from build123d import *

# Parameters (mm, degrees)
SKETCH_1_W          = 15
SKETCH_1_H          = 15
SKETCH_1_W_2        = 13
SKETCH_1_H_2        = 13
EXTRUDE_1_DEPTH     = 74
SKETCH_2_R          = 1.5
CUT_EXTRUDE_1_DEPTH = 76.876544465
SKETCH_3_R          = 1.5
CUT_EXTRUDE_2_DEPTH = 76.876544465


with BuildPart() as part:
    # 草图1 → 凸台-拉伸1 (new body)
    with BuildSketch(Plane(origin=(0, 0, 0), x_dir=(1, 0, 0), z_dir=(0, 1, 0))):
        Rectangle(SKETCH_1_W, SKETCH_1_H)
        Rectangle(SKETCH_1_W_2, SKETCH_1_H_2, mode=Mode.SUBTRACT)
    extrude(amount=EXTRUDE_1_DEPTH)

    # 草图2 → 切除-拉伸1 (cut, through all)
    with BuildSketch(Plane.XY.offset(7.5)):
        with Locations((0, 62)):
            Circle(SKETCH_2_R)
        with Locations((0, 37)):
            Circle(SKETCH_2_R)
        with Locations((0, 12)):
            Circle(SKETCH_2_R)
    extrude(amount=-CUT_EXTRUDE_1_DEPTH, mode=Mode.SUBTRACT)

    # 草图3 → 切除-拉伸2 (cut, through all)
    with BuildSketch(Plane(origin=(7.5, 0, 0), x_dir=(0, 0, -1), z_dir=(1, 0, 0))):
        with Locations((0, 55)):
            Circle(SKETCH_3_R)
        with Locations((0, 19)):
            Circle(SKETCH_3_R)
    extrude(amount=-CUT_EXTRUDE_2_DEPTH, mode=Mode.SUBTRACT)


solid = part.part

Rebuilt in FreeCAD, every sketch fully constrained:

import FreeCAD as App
import Part
import Sketcher

V = App.Vector
Q = App.Units.Quantity

doc = App.newDocument("Part")
params = doc.addObject("Spreadsheet::Sheet", "Params")
for row, (alias, value) in enumerate([
    ("sketch1_width", "15 mm"),
    ("sketch1_width2", "13 mm"),
    ("pad1_length", "74 mm"),
    ("sketch2_diameter", "3 mm"),
    ("sketch3_diameter", "3 mm"),
], start=1):
    params.set(f"A{row}", alias)
    params.set(f"B{row}", "=" + value)
    params.setAlias(f"B{row}", alias)

body = doc.addObject("PartDesign::Body", "Body")

# Sketch on XZ plane
sketch1 = body.newObject("Sketcher::SketchObject", "Sketch")
sketch1.AttachmentSupport = (doc.getObject("XZ_Plane"), [""])
sketch1.MapMode = "FlatFace"
sketch1.addGeometry(Part.LineSegment(V(-7.5, -7.5, 0), V(-7.5, 7.5, 0)), False)
sketch1.addGeometry(Part.LineSegment(V(-7.5, 7.5, 0), V(7.5, 7.5, 0)), False)
sketch1.addGeometry(Part.LineSegment(V(7.5, 7.5, 0), V(7.5, -7.5, 0)), False)
sketch1.addGeometry(Part.LineSegment(V(7.5, -7.5, 0), V(-7.5, -7.5, 0)), False)
sketch1.addGeometry(Part.LineSegment(V(6.5, 6.5, 0), V(-6.5, 6.5, 0)), False)
sketch1.addGeometry(Part.LineSegment(V(-6.5, 6.5, 0), V(-6.5, -6.5, 0)), False)
sketch1.addGeometry(Part.LineSegment(V(-6.5, -6.5, 0), V(6.5, -6.5, 0)), False)
sketch1.addGeometry(Part.LineSegment(V(6.5, -6.5, 0), V(6.5, 6.5, 0)), False)
sketch1.addConstraint(Sketcher.Constraint("Coincident", 0, 2, 1, 1))
sketch1.addConstraint(Sketcher.Constraint("Coincident", 1, 2, 2, 1))
sketch1.addConstraint(Sketcher.Constraint("Coincident", 2, 2, 3, 1))
sketch1.addConstraint(Sketcher.Constraint("Coincident", 3, 2, 0, 1))
sketch1.addConstraint(Sketcher.Constraint("Coincident", 4, 2, 5, 1))
sketch1.addConstraint(Sketcher.Constraint("Coincident", 5, 2, 6, 1))
sketch1.addConstraint(Sketcher.Constraint("Coincident", 6, 2, 7, 1))
sketch1.addConstraint(Sketcher.Constraint("Coincident", 7, 2, 4, 1))
sketch1.addConstraint(Sketcher.Constraint("Vertical", 0))
sketch1.addConstraint(Sketcher.Constraint("Horizontal", 1))
sketch1.addConstraint(Sketcher.Constraint("Vertical", 2))
sketch1.addConstraint(Sketcher.Constraint("Horizontal", 3))
sketch1.addConstraint(Sketcher.Constraint("Horizontal", 4))
sketch1.addConstraint(Sketcher.Constraint("Vertical", 5))
sketch1.addConstraint(Sketcher.Constraint("Horizontal", 6))
sketch1.addConstraint(Sketcher.Constraint("Vertical", 7))
sketch1.addConstraint(Sketcher.Constraint("Symmetric", 0, 2, 2, 2, -1, 1))
sketch1.addConstraint(Sketcher.Constraint("Symmetric", 4, 2, 6, 2, -1, 1))
sketch1.addConstraint(Sketcher.Constraint("Equal", 3, 0))
sketch1.addConstraint(Sketcher.Constraint("Equal", 6, 5))
sketch1.addConstraint(Sketcher.Constraint("DistanceX", 1, 1, 1, 2, Q("15 mm")))
sketch1.addConstraint(Sketcher.Constraint("DistanceX", 4, 2, 4, 1, Q("13 mm")))
sketch1.setExpression("Constraints[20]", "Params.sketch1_width")
sketch1.setExpression("Constraints[21]", "Params.sketch1_width2")
pad1 = body.newObject("PartDesign::Pad", "Pad")
pad1.Profile = sketch1
pad1.setExpression("Length", "Params.pad1_length")
pad1.Reversed = True

# Sketch on XY plane
sketch2 = body.newObject("Sketcher::SketchObject", "Sketch001")
sketch2.AttachmentSupport = (doc.getObject("XY_Plane"), [""])
sketch2.MapMode = "FlatFace"
sketch2.AttachmentOffset = App.Placement(V(0, 0, 7.5), App.Rotation())
sketch2.addGeometry(Part.Circle(V(0, 62, 0), V(0, 0, 1), 1.5), False)
sketch2.addGeometry(Part.Circle(V(0, 37, 0), V(0, 0, 1), 1.5), False)
sketch2.addGeometry(Part.Circle(V(0, 12, 0), V(0, 0, 1), 1.5), False)
sketch2.addConstraint(Sketcher.Constraint("Equal", 0, 1))
sketch2.addConstraint(Sketcher.Constraint("Equal", 1, 2))
sketch2.addConstraint(Sketcher.Constraint("PointOnObject", 0, 3, -2))
sketch2.addConstraint(Sketcher.Constraint("PointOnObject", 1, 3, -2))
sketch2.addConstraint(Sketcher.Constraint("PointOnObject", 2, 3, -2))
sketch2.addConstraint(Sketcher.Constraint("Diameter", 0, Q("3 mm")))
sketch2.addConstraint(Sketcher.Constraint("DistanceY", -1, 1, 0, 3, Q("62 mm")))
sketch2.addConstraint(Sketcher.Constraint("DistanceY", -1, 1, 1, 3, Q("37 mm")))
sketch2.addConstraint(Sketcher.Constraint("DistanceY", -1, 1, 2, 3, Q("12 mm")))
sketch2.setExpression("Constraints[5]", "Params.sketch2_diameter")
pocket1 = body.newObject("PartDesign::Pocket", "Pocket")
pocket1.Profile = sketch2
pocket1.Type = "ThroughAll"

# Sketch on YZ plane
sketch3 = body.newObject("Sketcher::SketchObject", "Sketch002")
sketch3.AttachmentSupport = (doc.getObject("YZ_Plane"), [""])
sketch3.MapMode = "FlatFace"
sketch3.AttachmentOffset = App.Placement(V(0, 0, 7.5), App.Rotation())
sketch3.addGeometry(Part.Circle(V(55, 0, 0), V(0, 0, 1), 1.5), False)
sketch3.addGeometry(Part.Circle(V(19, 0, 0), V(0, 0, 1), 1.5), False)
sketch3.addConstraint(Sketcher.Constraint("Equal", 0, 1))
sketch3.addConstraint(Sketcher.Constraint("PointOnObject", 0, 3, -1))
sketch3.addConstraint(Sketcher.Constraint("PointOnObject", 1, 3, -1))
sketch3.addConstraint(Sketcher.Constraint("Diameter", 0, Q("3 mm")))
sketch3.addConstraint(Sketcher.Constraint("DistanceX", -1, 1, 0, 3, Q("55 mm")))
sketch3.addConstraint(Sketcher.Constraint("DistanceX", -1, 1, 1, 3, Q("19 mm")))
sketch3.setExpression("Constraints[3]", "Params.sketch3_diameter")
pocket2 = body.newObject("PartDesign::Pocket", "Pocket001")
pocket2.Profile = sketch3
pocket2.Type = "ThroughAll"

doc.recompute()
